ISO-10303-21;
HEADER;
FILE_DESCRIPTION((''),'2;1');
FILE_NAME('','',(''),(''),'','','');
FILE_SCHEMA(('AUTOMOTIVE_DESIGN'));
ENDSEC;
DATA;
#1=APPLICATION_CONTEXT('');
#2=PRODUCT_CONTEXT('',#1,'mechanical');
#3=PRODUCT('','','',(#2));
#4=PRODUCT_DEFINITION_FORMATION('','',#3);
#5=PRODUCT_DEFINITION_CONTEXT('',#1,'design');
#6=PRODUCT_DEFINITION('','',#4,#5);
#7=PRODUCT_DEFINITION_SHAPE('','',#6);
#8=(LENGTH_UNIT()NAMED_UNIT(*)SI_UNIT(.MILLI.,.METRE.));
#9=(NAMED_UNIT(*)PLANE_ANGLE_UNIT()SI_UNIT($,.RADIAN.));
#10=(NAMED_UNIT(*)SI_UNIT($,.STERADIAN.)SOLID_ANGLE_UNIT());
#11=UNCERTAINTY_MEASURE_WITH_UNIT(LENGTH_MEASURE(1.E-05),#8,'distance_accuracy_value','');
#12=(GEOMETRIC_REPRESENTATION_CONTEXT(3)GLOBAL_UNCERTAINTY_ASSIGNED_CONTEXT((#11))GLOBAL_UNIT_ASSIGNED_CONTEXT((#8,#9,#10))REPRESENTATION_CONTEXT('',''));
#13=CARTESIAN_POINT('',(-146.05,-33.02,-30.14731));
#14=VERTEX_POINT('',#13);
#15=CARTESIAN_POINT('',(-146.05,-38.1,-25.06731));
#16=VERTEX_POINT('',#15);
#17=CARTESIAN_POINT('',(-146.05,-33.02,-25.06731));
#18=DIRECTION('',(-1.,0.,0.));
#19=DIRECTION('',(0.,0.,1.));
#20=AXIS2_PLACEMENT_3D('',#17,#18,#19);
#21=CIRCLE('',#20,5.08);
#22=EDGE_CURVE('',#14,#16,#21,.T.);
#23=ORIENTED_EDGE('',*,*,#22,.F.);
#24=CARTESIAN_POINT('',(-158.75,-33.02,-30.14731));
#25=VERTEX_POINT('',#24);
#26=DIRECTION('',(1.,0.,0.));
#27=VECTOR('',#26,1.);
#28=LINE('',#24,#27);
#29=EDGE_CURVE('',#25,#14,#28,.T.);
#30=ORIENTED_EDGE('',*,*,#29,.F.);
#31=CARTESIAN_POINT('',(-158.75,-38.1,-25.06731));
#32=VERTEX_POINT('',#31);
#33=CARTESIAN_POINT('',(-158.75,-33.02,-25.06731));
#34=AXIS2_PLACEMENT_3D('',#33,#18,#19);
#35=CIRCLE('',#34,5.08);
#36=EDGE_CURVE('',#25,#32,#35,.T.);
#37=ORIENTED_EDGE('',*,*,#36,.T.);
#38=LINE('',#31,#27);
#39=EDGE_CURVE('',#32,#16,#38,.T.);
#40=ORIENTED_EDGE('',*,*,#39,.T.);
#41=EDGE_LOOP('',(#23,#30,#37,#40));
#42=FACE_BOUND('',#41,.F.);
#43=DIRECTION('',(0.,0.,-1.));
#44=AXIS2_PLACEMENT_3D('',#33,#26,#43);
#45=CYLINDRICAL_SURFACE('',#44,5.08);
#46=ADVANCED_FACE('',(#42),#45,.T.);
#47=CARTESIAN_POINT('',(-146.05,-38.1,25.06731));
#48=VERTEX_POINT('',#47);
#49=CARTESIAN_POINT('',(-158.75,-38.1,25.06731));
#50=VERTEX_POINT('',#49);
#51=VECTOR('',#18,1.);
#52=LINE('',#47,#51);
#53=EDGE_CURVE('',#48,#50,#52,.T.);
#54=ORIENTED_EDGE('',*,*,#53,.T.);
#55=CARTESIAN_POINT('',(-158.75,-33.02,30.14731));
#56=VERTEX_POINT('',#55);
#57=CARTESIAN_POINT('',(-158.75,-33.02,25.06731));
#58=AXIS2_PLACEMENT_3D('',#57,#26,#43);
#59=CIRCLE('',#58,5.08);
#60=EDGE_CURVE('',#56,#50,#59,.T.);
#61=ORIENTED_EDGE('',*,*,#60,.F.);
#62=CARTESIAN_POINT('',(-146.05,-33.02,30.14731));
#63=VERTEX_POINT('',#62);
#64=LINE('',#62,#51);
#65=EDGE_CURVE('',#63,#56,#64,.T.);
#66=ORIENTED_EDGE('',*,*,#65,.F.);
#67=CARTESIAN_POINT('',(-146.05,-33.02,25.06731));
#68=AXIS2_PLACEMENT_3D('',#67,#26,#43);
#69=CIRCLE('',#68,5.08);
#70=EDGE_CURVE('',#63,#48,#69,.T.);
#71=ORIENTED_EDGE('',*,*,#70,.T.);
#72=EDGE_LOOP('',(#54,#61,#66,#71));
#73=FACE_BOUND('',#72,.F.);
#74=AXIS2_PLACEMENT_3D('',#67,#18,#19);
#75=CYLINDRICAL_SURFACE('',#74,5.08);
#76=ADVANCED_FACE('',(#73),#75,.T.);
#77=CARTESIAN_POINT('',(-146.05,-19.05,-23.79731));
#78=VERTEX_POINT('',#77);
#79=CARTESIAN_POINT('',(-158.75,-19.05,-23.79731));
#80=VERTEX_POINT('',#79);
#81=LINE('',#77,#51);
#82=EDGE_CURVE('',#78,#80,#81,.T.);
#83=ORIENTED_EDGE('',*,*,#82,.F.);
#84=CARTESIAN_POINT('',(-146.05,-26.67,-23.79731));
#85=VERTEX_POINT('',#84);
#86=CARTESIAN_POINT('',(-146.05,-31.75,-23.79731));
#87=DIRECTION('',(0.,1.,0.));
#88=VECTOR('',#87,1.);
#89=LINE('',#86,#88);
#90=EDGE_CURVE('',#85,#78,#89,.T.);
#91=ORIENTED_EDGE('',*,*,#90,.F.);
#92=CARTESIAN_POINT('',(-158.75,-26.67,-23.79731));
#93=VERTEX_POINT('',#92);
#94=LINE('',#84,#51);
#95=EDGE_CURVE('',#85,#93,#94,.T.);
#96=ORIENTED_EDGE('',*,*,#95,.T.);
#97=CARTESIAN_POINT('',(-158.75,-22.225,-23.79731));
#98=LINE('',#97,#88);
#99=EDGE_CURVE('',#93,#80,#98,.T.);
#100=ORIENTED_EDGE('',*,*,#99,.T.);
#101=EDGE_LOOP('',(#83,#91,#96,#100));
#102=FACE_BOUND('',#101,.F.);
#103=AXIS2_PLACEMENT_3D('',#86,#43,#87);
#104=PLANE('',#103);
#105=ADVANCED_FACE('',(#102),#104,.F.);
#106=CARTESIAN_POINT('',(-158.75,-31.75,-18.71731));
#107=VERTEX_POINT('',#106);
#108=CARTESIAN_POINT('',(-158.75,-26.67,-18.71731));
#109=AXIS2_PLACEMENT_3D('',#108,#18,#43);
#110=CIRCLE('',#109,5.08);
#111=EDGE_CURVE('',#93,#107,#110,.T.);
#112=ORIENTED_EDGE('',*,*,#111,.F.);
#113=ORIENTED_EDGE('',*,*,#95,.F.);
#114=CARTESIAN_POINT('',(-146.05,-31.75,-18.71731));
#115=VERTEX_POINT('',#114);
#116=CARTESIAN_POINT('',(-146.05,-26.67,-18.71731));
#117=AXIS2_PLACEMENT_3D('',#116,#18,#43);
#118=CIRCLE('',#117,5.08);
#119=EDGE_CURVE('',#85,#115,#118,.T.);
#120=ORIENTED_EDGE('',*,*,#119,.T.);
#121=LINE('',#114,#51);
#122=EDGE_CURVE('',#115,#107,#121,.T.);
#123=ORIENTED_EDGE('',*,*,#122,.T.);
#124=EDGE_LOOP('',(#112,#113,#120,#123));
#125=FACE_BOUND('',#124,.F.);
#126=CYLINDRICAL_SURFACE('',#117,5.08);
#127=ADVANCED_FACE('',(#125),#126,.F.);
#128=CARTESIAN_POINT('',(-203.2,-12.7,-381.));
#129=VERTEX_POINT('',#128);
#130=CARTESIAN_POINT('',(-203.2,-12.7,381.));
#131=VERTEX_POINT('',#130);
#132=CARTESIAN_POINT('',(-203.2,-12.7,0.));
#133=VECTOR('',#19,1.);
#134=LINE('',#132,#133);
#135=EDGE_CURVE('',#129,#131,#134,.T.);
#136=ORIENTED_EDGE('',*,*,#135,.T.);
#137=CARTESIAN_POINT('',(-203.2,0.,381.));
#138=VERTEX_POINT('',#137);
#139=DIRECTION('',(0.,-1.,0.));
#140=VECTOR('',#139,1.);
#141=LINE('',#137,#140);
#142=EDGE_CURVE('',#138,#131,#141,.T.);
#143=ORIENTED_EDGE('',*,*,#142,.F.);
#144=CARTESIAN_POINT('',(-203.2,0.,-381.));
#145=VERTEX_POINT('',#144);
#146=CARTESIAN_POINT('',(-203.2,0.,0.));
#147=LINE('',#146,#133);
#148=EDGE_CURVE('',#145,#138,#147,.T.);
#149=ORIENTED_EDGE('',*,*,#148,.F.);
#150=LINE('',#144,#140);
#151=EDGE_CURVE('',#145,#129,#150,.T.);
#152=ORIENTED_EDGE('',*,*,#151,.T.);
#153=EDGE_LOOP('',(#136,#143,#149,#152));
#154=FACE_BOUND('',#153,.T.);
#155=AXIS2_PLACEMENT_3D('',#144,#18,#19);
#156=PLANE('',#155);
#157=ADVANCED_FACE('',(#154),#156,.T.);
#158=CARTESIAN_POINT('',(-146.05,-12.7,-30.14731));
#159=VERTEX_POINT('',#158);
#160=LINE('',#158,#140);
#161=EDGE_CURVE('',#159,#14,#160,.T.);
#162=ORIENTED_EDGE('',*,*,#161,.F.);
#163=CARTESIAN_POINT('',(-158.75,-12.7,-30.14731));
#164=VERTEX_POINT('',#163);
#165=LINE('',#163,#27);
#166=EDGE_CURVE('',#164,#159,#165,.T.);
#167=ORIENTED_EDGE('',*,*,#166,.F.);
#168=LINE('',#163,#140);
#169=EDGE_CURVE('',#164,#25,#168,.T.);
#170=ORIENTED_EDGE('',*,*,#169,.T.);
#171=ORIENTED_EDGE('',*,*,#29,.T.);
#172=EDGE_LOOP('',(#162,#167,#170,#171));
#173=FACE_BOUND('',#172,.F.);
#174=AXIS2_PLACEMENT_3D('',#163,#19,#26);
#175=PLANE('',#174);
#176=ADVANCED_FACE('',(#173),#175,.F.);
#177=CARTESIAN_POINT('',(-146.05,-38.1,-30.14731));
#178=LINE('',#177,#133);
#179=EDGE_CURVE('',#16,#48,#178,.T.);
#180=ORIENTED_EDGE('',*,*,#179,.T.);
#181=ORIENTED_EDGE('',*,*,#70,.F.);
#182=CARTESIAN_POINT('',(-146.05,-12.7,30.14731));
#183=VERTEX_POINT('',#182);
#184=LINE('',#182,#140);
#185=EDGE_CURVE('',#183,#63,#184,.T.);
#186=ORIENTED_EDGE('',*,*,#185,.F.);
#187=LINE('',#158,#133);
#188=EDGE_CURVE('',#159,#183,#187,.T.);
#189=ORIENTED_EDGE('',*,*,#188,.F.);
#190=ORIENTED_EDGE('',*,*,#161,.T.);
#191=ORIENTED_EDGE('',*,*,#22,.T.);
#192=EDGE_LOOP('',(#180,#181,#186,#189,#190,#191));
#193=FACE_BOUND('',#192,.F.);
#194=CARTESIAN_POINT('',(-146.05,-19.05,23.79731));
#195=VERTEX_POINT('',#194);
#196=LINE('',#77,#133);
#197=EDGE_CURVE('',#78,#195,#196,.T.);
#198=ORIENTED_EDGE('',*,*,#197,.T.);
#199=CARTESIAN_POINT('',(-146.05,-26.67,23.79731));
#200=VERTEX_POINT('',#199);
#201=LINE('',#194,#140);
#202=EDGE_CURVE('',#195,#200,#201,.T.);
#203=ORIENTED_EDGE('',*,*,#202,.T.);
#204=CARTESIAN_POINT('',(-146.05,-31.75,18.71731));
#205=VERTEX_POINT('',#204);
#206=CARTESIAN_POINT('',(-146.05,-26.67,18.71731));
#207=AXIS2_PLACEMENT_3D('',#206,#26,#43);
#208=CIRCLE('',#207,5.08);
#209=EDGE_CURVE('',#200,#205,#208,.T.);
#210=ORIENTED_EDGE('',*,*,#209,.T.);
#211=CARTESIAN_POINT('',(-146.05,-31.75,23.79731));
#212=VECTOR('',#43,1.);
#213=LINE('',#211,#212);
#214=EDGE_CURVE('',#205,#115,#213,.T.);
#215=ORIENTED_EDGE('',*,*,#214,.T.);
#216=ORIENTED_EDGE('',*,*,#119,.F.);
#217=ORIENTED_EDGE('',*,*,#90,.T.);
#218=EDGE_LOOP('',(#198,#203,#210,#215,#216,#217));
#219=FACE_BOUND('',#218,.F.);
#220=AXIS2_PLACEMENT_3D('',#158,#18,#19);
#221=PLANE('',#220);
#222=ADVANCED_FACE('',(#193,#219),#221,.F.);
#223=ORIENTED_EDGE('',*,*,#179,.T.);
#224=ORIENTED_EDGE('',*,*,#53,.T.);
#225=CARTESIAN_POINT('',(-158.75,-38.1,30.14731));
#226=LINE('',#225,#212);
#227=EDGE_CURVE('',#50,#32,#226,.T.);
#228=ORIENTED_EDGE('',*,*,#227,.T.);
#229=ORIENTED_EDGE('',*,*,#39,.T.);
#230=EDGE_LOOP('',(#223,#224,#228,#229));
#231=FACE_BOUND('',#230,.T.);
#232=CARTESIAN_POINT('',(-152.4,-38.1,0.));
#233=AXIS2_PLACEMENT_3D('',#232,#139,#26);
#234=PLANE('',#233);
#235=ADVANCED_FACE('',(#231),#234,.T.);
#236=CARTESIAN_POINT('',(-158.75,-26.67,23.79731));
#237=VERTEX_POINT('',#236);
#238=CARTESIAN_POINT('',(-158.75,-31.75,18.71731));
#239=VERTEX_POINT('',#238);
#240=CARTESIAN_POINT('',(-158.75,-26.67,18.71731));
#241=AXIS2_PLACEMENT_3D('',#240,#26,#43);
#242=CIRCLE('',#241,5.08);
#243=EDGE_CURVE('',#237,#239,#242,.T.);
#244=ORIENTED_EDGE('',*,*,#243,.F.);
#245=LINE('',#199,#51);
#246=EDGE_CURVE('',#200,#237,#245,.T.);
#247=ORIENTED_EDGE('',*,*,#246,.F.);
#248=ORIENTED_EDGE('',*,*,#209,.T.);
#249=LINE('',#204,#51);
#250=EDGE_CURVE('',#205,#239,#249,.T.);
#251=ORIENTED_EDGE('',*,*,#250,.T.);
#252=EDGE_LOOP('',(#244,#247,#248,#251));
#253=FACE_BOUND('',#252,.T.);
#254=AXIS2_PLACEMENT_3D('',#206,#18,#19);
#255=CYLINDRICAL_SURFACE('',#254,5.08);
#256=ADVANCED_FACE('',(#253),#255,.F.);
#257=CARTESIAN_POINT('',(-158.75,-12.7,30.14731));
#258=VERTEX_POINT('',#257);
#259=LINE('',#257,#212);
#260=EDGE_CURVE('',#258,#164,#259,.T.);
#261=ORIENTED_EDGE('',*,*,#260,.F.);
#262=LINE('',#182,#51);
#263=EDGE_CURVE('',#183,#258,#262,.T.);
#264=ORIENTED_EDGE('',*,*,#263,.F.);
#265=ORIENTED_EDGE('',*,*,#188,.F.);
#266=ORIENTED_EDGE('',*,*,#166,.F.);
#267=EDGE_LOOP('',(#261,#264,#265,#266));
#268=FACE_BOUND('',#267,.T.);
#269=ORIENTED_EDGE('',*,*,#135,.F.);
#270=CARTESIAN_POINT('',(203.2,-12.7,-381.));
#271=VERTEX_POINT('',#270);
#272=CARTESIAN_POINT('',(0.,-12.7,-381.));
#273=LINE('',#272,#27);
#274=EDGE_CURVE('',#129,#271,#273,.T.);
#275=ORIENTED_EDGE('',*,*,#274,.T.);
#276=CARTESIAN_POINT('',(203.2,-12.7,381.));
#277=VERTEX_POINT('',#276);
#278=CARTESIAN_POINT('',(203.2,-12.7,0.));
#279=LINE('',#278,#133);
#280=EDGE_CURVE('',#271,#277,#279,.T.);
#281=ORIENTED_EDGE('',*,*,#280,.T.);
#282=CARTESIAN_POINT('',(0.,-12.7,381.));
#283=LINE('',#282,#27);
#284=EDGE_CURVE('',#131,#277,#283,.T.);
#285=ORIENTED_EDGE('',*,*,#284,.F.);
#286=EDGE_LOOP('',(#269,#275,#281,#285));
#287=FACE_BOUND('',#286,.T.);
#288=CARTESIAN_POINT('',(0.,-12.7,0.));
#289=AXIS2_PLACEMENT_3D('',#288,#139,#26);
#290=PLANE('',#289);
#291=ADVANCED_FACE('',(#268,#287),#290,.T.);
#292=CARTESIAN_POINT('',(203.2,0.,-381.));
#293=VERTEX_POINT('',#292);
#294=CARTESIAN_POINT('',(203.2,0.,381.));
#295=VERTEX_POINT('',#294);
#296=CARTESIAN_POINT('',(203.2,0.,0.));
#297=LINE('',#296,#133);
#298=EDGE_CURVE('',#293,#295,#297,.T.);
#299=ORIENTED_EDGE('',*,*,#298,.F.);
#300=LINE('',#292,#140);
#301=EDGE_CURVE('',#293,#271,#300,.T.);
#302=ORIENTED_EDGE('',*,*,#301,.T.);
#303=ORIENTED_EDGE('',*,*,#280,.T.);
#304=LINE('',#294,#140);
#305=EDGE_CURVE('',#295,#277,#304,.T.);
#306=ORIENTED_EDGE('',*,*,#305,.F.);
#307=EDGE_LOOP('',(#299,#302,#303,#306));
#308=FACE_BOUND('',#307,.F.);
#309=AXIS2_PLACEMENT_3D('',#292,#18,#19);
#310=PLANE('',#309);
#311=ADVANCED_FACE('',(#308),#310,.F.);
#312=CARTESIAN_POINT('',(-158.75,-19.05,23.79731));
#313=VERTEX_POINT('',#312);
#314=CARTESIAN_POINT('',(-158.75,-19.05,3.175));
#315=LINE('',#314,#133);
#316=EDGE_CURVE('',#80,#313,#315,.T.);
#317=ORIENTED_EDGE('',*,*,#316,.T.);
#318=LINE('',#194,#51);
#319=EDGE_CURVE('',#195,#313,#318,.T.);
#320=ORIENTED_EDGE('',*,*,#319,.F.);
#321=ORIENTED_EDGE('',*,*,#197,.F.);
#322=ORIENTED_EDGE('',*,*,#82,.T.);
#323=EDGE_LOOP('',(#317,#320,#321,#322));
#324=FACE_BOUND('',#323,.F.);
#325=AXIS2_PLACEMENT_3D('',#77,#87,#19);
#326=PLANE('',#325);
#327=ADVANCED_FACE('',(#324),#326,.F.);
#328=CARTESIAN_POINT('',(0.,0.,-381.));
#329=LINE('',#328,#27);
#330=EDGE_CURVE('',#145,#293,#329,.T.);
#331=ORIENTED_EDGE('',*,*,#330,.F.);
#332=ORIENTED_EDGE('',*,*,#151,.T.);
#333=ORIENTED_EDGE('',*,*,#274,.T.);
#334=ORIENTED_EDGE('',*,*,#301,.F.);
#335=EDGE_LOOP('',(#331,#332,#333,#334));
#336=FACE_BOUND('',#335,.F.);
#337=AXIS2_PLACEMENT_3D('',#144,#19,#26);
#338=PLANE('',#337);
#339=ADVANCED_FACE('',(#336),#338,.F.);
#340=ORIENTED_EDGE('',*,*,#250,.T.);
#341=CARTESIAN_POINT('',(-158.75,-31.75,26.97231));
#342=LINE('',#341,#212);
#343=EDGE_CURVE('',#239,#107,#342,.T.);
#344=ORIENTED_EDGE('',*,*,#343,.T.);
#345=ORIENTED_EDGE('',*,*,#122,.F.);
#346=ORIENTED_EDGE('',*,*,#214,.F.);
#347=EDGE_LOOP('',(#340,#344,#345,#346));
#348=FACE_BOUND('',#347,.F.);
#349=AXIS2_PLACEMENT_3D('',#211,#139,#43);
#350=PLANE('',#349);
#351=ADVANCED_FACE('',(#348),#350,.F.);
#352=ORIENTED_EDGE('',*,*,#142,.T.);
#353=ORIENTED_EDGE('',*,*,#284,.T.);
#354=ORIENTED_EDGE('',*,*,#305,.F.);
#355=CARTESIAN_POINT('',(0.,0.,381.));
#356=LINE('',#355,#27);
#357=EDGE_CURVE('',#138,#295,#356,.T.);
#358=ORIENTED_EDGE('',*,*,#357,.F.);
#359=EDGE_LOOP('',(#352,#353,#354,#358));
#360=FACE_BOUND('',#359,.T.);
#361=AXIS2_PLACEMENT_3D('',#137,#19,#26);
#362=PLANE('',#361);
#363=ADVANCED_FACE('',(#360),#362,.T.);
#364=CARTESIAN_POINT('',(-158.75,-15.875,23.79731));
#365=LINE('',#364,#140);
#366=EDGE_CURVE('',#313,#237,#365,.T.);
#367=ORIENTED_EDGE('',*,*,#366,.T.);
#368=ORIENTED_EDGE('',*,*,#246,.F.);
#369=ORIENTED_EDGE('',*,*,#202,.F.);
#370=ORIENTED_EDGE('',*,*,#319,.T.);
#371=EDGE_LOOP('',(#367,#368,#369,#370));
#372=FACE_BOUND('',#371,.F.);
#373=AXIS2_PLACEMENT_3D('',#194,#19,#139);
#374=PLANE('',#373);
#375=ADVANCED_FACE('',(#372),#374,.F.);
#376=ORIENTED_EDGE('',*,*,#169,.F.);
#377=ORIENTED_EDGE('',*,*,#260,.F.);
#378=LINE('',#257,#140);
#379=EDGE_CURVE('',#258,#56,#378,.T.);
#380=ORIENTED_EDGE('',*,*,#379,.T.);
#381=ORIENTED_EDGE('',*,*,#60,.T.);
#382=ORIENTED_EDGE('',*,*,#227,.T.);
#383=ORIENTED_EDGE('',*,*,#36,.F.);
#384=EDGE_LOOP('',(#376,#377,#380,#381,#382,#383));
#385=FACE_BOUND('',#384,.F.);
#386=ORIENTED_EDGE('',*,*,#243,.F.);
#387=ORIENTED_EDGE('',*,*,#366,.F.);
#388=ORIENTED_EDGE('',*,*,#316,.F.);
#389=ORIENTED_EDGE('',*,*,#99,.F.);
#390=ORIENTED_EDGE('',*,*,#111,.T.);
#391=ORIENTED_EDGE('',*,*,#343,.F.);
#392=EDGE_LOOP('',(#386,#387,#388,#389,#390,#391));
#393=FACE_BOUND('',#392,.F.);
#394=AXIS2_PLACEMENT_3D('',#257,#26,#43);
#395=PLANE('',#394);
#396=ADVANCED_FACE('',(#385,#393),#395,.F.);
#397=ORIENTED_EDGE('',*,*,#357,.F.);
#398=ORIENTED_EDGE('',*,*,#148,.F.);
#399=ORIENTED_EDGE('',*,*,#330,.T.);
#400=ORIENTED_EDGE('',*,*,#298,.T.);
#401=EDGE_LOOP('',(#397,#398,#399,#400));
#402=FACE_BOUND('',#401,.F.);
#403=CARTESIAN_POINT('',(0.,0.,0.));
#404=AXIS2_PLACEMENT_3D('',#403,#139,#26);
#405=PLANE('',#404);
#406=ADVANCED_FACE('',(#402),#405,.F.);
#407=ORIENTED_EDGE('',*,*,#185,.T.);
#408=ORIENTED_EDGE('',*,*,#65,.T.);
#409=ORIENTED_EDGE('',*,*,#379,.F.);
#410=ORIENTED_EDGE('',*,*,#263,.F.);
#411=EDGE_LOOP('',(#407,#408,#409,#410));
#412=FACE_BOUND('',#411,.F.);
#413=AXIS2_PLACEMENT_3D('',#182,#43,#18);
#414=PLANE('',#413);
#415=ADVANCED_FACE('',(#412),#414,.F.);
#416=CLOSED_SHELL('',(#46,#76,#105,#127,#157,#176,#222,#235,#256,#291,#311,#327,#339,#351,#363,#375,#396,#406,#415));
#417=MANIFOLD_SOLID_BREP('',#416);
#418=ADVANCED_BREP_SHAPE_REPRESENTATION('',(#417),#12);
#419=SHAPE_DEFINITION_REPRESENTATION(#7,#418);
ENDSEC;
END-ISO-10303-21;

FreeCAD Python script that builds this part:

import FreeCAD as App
import Part
import Sketcher

V = App.Vector
Q = App.Units.Quantity


def edges_at(feature, points):
    """Names of the edges that pass closest to the given points."""
    edges = feature.Shape.Edges
    near = lambda p: min(range(len(edges)), key=lambda i: edges[i].distToShape(Part.Vertex(*p))[0])
    return sorted({f"Edge{near(p) + 1}" for p in points})


def add_polygon(sketch, points):
    """Adds a closed chain of lines whose ends are joined by coincident constraints."""
    first, n = sketch.GeometryCount, len(points)
    for a, b in zip(points, points[1:] + points[:1]):
        sketch.addGeometry(Part.LineSegment(App.Vector(*a, 0), App.Vector(*b, 0)), False)
    for i in range(n):
        sketch.addConstraint(Sketcher.Constraint("Coincident", first + i, 2, first + (i + 1) % n, 1))

doc = App.newDocument("Part")
body = doc.addObject("PartDesign::Body", "Body")

sketch1 = body.newObject("Sketcher::SketchObject", "Sketch")
sketch1.AttachmentSupport = (doc.getObject("XZ_Plane"), [""])
sketch1.MapMode = "FlatFace"
add_polygon(sketch1, [(-203, 381), (-203, -381), (203, -381), (203, 381)])
sketch1.addConstraint(Sketcher.Constraint("Vertical", 0))
sketch1.addConstraint(Sketcher.Constraint("Horizontal", 1))
sketch1.addConstraint(Sketcher.Constraint("Vertical", 2))
sketch1.addConstraint(Sketcher.Constraint("Horizontal", 3))
sketch1.addConstraint(Sketcher.Constraint("Symmetric", 0, 2, 2, 2, -1, 1))
sketch1.addConstraint(Sketcher.Constraint("DistanceX", 1, 1, 1, 2, Q("16 in")))
sketch1.addConstraint(Sketcher.Constraint("DistanceY", 0, 2, 0, 1, Q("30 in")))
pad1 = body.newObject("PartDesign::Pad", "Pad")
pad1.Profile = sketch1
pad1.Length = Q("0.5 in")

sketch2 = body.newObject("Sketcher::SketchObject", "Sketch001")
sketch2.AttachmentSupport = (doc.getObject("XZ_Plane"), [""])
sketch2.MapMode = "FlatFace"
sketch2.AttachmentOffset = App.Placement(V(0, 0, 0.5 * 25.4), App.Rotation())
add_polygon(sketch2, [(-146, -30), (-146, 30), (-159, 30), (-159, -30)])
sketch2.addConstraint(Sketcher.Constraint("Vertical", 0))
sketch2.addConstraint(Sketcher.Constraint("Horizontal", 1))
sketch2.addConstraint(Sketcher.Constraint("Vertical", 2))
sketch2.addConstraint(Sketcher.Constraint("Horizontal", 3))
sketch2.addConstraint(Sketcher.Constraint("DistanceX", 1, 2, 1, 1, Q("0.5 in")))
sketch2.addConstraint(Sketcher.Constraint("DistanceX", 0, 2, -1, 1, Q("5.75 in")))
sketch2.addConstraint(Sketcher.Constraint("DistanceY", 0, 1, 0, 2, Q("60.29462 mm")))
sketch2.addConstraint(Sketcher.Constraint("DistanceY", -1, 1, 0, 2, Q("30.14731 mm")))
pad2 = body.newObject("PartDesign::Pad", "Pad001")
pad2.Profile = sketch2
pad2.Length = Q("1 in")

sketch3 = body.newObject("Sketcher::SketchObject", "Sketch002")
sketch3.AttachmentSupport = (doc.getObject("YZ_Plane"), [""])
sketch3.MapMode = "FlatFace"
sketch3.AttachmentOffset = App.Placement(V(0, 0, -5.75 * 25.4), App.Rotation())
add_polygon(sketch3, [(-32, 24), (-32, -24), (-19, -24), (-19, 24)])
sketch3.addConstraint(Sketcher.Constraint("Vertical", 0))
sketch3.addConstraint(Sketcher.Constraint("Horizontal", 1))
sketch3.addConstraint(Sketcher.Constraint("Vertical", 2))
sketch3.addConstraint(Sketcher.Constraint("Horizontal", 3))
sketch3.addConstraint(Sketcher.Constraint("DistanceX", 1, 1, 1, 2, Q("0.5 in")))
sketch3.addConstraint(Sketcher.Constraint("DistanceX", 0, 2, -1, 1, Q("1.25 in")))
sketch3.addConstraint(Sketcher.Constraint("DistanceY", 0, 2, 0, 1, Q("47.59462 mm")))
sketch3.addConstraint(Sketcher.Constraint("DistanceY", 0, 2, -1, 1, Q("23.79731 mm")))
pocket1 = body.newObject("PartDesign::Pocket", "Pocket")
pocket1.Profile = sketch3
pocket1.Length = Q("3.4 in")
doc.recompute()

fillet = body.newObject("PartDesign::Fillet", "Fillet")
fillet.Base = (pocket1, edges_at(pocket1, [
    (-152.4, -38.1, 30.147),
    (-152.4, -38.1, -30.147),
    (-152.4, -31.75, 23.797),
    (-152.4, -31.75, -23.797),
]))
fillet.Radius = Q("0.2 in")

doc.recompute()
